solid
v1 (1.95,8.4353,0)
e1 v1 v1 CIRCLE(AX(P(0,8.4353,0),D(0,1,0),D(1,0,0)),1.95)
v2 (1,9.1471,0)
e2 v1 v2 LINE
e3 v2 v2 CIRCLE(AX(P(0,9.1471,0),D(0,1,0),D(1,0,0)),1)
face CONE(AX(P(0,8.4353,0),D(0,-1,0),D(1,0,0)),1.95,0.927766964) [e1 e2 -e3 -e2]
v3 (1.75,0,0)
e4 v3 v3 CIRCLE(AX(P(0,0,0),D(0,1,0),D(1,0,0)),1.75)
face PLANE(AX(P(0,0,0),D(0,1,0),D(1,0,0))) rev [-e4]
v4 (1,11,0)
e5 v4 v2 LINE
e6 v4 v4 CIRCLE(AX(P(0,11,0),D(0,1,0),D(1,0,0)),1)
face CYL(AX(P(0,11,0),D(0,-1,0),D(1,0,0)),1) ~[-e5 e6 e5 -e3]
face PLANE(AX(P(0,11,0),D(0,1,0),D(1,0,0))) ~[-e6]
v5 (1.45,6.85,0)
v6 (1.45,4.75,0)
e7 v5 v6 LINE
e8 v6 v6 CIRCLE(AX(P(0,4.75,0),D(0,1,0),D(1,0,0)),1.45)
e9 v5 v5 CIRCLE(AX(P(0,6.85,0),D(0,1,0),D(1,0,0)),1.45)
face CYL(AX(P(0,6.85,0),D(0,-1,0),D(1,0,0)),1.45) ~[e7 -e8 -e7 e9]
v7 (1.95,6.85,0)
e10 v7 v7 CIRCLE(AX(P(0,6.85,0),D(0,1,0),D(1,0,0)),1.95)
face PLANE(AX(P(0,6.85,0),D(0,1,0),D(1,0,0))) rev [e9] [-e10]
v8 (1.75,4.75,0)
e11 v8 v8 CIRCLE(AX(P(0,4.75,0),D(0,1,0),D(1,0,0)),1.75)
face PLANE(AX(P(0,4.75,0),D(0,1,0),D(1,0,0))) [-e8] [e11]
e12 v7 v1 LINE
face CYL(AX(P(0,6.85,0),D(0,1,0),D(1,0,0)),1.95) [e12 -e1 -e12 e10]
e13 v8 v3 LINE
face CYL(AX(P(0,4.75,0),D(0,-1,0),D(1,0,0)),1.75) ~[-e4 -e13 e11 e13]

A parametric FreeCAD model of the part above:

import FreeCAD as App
import Part
import Sketcher

V = App.Vector
Q = App.Units.Quantity

doc = App.newDocument("Part")
body = doc.addObject("PartDesign::Body", "Body")

sketch1 = doc.addObject("Sketcher::SketchObject", "Sketch")
body.addObject(sketch1)
sketch1.AttachmentSupport = (doc.XY_Plane, [""])
sketch1.MapMode = "FlatFace"
sketch1.addGeometry(Part.LineSegment(V(0, 11, 0), V(0, 0, 0)), False)
sketch1.addGeometry(Part.LineSegment(V(0, 0, 0), V(1.75, 0, 0)), False)
sketch1.addGeometry(Part.LineSegment(V(1.75, 0, 0), V(1.75, 4.75, 0)), False)
sketch1.addGeometry(Part.LineSegment(V(1.75, 4.75, 0), V(1.45, 4.75, 0)), False)
sketch1.addGeometry(Part.LineSegment(V(1.45, 4.75, 0), V(1.45, 6.85, 0)), False)
sketch1.addGeometry(Part.LineSegment(V(1.45, 6.85, 0), V(1.95, 6.85, 0)), False)
sketch1.addGeometry(Part.LineSegment(V(1.95, 6.85, 0), V(1.95, 8.4353, 0)), False)
sketch1.addGeometry(Part.LineSegment(V(1.95, 8.4353, 0), V(1, 9.1471, 0)), False)
sketch1.addGeometry(Part.LineSegment(V(1, 9.1471, 0), V(1, 11, 0)), False)
sketch1.addGeometry(Part.LineSegment(V(1, 11, 0), V(0, 11, 0)), False)
sketch1.addConstraint(Sketcher.Constraint("Coincident", 0, 2, 1, 1))
sketch1.addConstraint(Sketcher.Constraint("Coincident", 1, 2, 2, 1))
sketch1.addConstraint(Sketcher.Constraint("Coincident", 2, 2, 3, 1))
sketch1.addConstraint(Sketcher.Constraint("Coincident", 3, 2, 4, 1))
sketch1.addConstraint(Sketcher.Constraint("Coincident", 4, 2, 5, 1))
sketch1.addConstraint(Sketcher.Constraint("Coincident", 5, 2, 6, 1))
sketch1.addConstraint(Sketcher.Constraint("Coincident", 6, 2, 7, 1))
sketch1.addConstraint(Sketcher.Constraint("Coincident", 7, 2, 8, 1))
sketch1.addConstraint(Sketcher.Constraint("Coincident", 8, 2, 9, 1))
sketch1.addConstraint(Sketcher.Constraint("Coincident", 9, 2, 0, 1))
sketch1.addConstraint(Sketcher.Constraint("Vertical", 0))
sketch1.addConstraint(Sketcher.Constraint("Horizontal", 1))
sketch1.addConstraint(Sketcher.Constraint("Vertical", 2))
sketch1.addConstraint(Sketcher.Constraint("Horizontal", 3))
sketch1.addConstraint(Sketcher.Constraint("Vertical", 4))
sketch1.addConstraint(Sketcher.Constraint("Horizontal", 5))
sketch1.addConstraint(Sketcher.Constraint("Vertical", 6))
sketch1.addConstraint(Sketcher.Constraint("Vertical", 8))
sketch1.addConstraint(Sketcher.Constraint("Horizontal", 9))
sketch1.addConstraint(Sketcher.Constraint("Coincident", 0, 2, -1, 1))
sketch1.addConstraint(Sketcher.Constraint("DistanceX", 9, 2, 9, 1, Q("1 mm")))
sketch1.addConstraint(Sketcher.Constraint("DistanceY", 4, 1, 4, 2, Q("2.1 mm")))
sketch1.addConstraint(Sketcher.Constraint("DistanceX", 1, 1, 1, 2, Q("1.75 mm")))
sketch1.addConstraint(Sketcher.Constraint("DistanceY", 0, 2, 0, 1, Q("11 mm")))
sketch1.addConstraint(Sketcher.Constraint("DistanceX", -1, 1, 3, 2, Q("1.45 mm")))
sketch1.addConstraint(Sketcher.Constraint("DistanceX", -1, 1, 5, 2, Q("1.95 mm")))
sketch1.addConstraint(Sketcher.Constraint("DistanceY", 2, 1, 2, 2, Q("4.75 mm")))
sketch1.addConstraint(Sketcher.Constraint("DistanceY", 8, 1, 8, 2, Q("1.853 mm")))
sketch1.addConstraint(Sketcher.Constraint("Distance", 7, Q("1.187 mm")))
revolution = doc.addObject("PartDesign::Revolution", "Revolution")
body.addObject(revolution)
revolution.Profile = sketch1
revolution.ReferenceAxis = (sketch1, ["V_Axis"])
revolution.Angle = 360

doc.recompute()
